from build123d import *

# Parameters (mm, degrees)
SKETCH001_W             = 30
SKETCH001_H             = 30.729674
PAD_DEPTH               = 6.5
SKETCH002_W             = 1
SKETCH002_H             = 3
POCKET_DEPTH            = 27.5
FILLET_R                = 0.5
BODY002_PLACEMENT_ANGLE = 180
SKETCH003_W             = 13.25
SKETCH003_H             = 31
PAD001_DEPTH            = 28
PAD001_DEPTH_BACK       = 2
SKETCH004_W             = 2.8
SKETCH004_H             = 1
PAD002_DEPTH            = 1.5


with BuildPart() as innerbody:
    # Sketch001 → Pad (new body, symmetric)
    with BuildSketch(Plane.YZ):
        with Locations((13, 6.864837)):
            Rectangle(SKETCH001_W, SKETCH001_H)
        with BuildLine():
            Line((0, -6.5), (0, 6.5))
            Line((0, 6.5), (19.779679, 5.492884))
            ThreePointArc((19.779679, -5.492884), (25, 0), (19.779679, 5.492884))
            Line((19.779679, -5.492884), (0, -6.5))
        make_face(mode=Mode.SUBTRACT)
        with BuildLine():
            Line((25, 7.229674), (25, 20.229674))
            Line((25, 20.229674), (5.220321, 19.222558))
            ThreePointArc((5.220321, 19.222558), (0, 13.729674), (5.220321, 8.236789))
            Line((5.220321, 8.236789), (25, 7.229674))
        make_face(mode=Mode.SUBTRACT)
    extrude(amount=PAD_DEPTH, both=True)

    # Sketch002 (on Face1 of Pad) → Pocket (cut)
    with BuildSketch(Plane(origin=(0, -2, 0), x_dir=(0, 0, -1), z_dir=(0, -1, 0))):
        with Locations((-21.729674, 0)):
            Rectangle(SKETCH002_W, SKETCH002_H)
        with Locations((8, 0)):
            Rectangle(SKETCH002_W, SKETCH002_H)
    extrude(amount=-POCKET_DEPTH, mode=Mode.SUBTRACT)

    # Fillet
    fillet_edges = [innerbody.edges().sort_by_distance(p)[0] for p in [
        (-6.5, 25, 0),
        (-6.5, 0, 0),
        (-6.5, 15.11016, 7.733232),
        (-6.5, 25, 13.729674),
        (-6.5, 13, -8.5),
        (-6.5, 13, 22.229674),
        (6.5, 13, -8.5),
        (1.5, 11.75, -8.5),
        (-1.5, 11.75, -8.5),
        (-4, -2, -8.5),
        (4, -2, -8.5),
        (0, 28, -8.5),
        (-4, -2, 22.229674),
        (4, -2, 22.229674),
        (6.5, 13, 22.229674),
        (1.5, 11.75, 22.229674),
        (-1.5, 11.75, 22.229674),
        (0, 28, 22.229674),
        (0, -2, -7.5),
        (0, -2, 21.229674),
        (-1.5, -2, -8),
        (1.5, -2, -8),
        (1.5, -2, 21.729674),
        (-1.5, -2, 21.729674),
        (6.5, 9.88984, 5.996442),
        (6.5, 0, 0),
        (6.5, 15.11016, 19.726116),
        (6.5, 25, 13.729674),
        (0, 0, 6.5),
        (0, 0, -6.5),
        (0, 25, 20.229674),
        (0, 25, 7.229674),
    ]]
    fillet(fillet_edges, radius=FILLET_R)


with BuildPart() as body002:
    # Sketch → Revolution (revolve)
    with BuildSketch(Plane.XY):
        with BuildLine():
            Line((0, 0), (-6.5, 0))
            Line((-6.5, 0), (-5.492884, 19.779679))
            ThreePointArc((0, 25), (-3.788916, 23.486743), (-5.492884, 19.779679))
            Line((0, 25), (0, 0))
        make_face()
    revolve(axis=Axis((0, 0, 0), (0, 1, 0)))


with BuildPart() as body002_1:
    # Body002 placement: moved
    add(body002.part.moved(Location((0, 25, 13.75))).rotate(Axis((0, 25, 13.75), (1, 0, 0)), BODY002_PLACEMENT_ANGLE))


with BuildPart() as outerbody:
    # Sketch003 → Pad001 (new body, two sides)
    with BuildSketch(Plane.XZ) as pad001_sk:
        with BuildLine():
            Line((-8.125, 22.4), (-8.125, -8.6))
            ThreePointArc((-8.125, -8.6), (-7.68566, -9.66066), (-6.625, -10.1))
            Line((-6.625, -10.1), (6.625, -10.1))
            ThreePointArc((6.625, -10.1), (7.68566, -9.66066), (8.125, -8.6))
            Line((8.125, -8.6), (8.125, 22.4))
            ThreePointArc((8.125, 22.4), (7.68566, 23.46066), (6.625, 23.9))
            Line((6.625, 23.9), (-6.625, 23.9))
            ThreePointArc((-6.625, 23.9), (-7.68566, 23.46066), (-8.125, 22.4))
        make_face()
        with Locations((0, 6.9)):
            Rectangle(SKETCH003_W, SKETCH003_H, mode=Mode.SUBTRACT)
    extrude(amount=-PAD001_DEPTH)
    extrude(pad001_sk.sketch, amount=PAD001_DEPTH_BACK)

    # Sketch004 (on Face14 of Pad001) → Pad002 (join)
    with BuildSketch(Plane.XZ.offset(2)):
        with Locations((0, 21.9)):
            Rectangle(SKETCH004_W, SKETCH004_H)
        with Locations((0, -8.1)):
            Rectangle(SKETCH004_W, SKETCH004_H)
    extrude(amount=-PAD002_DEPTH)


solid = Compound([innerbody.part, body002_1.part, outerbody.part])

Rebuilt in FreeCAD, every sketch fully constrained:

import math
import FreeCAD as App
import Part
import Sketcher
from FreeCAD import Vector


def edges_at(feature, points):
    """Names of the edges that pass closest to the given points."""
    edges = feature.Shape.Edges
    near = lambda p: min(range(len(edges)), key=lambda i: edges[i].distToShape(Part.Vertex(*p))[0])
    return sorted({f"Edge{near(p) + 1}" for p in points})

doc = App.newDocument("Part")
body = doc.addObject("PartDesign::Body", "Body")

# Sketch on YZ plane
sketch1 = body.newObject("Sketcher::SketchObject", "Sketch")
sketch1.AttachmentSupport = (doc.getObject("YZ_Plane"), [""])
sketch1.MapMode = "FlatFace"
sketch1.addGeometry([
    Part.LineSegment(Vector(-2, 22, 0), Vector(-2, -8, 0)),  # 0
    Part.LineSegment(Vector(-2, -8, 0), Vector(28, -8, 0)),  # 1
    Part.LineSegment(Vector(28, -8, 0), Vector(28, 22, 0)),  # 2
    Part.LineSegment(Vector(28, 22, 0), Vector(-2, 22, 0)),  # 3
    Part.LineSegment(Vector(20, -5, 0), Vector(0, -6, 0)),  # 4
    Part.LineSegment(Vector(0, -6, 0), Vector(0, 6, 0)),  # 5
    Part.LineSegment(Vector(0, 6, 0), Vector(20, 5, 0)),  # 6
    Part.ArcOfCircle(Part.Circle(Vector(20, 0, 0), Vector(0, 0, 1), 5), math.radians(-87), math.radians(87)),  # 7
    Part.LineSegment(Vector(25, 20, 0), Vector(25, 7, 0)),  # 8
    Part.LineSegment(Vector(25, 7, 0), Vector(5, 8, 0)),  # 9
    Part.ArcOfCircle(Part.Circle(Vector(6, 14, 0), Vector(0, 0, 1), 6), math.radians(93), math.radians(267)),  # 10
    Part.LineSegment(Vector(5, 19, 0), Vector(25, 20, 0)),  # 11
], False)
sketch1.addConstraint([
    Sketcher.Constraint("Coincident", 0, 2, 1, 1),
    Sketcher.Constraint("Coincident", 1, 2, 2, 1),
    Sketcher.Constraint("Coincident", 2, 2, 3, 1),
    Sketcher.Constraint("Coincident", 3, 2, 0, 1),
    Sketcher.Constraint("Coincident", 4, 2, 5, 1),
    Sketcher.Constraint("Coincident", 5, 2, 6, 1),
    Sketcher.Constraint("Tangent", 6, 2, 7, 2),
    Sketcher.Constraint("Tangent", 7, 1, 4, 1),
    Sketcher.Constraint("Coincident", 8, 2, 9, 1),
    Sketcher.Constraint("Tangent", 9, 2, 10, 2),
    Sketcher.Constraint("Tangent", 10, 1, 11, 1),
    Sketcher.Constraint("Coincident", 11, 2, 8, 1),
    Sketcher.Constraint("Vertical", 0),
    Sketcher.Constraint("Horizontal", 1),
    Sketcher.Constraint("Vertical", 2),
    Sketcher.Constraint("Horizontal", 3),
    Sketcher.Constraint("Vertical", 5),
    Sketcher.Constraint("Vertical", 8),
    Sketcher.Constraint("Equal", 7, 10),
    Sketcher.Constraint("Symmetric", 4, 2, 5, 2, -1, 1),
    Sketcher.Constraint("PointOnObject", 7, 3, -1),
    Sketcher.Constraint("Parallel", 6, 9),
    Sketcher.Constraint("Parallel", 4, 11),
    Sketcher.Constraint("Equal", 5, 8),
    Sketcher.Constraint("Radius", 7, 5.5),
    Sketcher.Constraint("DistanceX", 1, 1, 1, 2, 30.0),
    Sketcher.Constraint("DistanceY", 5, 1, 5, 2, 13.0),
    Sketcher.Constraint("DistanceX", 0, 2, -1, 1, 2.0),
    Sketcher.Constraint("DistanceX", -1, 1, 8, 2, 25.0),
    Sketcher.Constraint("DistanceX", 10, 3, 7, 3, 14.0),
    Sketcher.Constraint("DistanceY", 0, 2, 4, 2, 2.0),
    Sketcher.Constraint("DistanceY", 8, 2, 2, 2, 15.0),
    Sketcher.Constraint("DistanceY", 0, 2, 0, 1, 30.729674),
])
pad1 = body.newObject("PartDesign::Pad", "Pad")
pad1.Profile = sketch1
pad1.Length = 13
pad1.Midplane = True

# Sketch on XZ plane
sketch2 = body.newObject("Sketcher::SketchObject", "Sketch001")
sketch2.AttachmentSupport = (doc.getObject("XZ_Plane"), [""])
sketch2.MapMode = "FlatFace"
sketch2.AttachmentOffset = App.Placement(Vector(0, 0, 2), App.Rotation())
sketch2.addGeometry([
    Part.LineSegment(Vector(1.5, 22.2, 0), Vector(-1.5, 22.2, 0)),  # 0
    Part.LineSegment(Vector(-1.5, 22.2, 0), Vector(-1.5, 21.2, 0)),  # 1
    Part.LineSegment(Vector(-1.5, 21.2, 0), Vector(1.5, 21.2, 0)),  # 2
    Part.LineSegment(Vector(1.5, 21.2, 0), Vector(1.5, 22.2, 0)),  # 3
    Part.LineSegment(Vector(1.5, -7.5, 0), Vector(-1.5, -7.5, 0)),  # 4
    Part.LineSegment(Vector(-1.5, -7.5, 0), Vector(-1.5, -8.5, 0)),  # 5
    Part.LineSegment(Vector(-1.5, -8.5, 0), Vector(1.5, -8.5, 0)),  # 6
    Part.LineSegment(Vector(1.5, -8.5, 0), Vector(1.5, -7.5, 0)),  # 7
], False)
sketch2.addConstraint([
    Sketcher.Constraint("Coincident", 0, 2, 1, 1),
    Sketcher.Constraint("Coincident", 1, 2, 2, 1),
    Sketcher.Constraint("Coincident", 2, 2, 3, 1),
    Sketcher.Constraint("Coincident", 3, 2, 0, 1),
    Sketcher.Constraint("Coincident", 4, 2, 5, 1),
    Sketcher.Constraint("Coincident", 5, 2, 6, 1),
    Sketcher.Constraint("Coincident", 6, 2, 7, 1),
    Sketcher.Constraint("Coincident", 7, 2, 4, 1),
    Sketcher.Constraint("Horizontal", 0),
    Sketcher.Constraint("Vertical", 1),
    Sketcher.Constraint("Horizontal", 2),
    Sketcher.Constraint("Vertical", 3),
    Sketcher.Constraint("Horizontal", 4),
    Sketcher.Constraint("Vertical", 5),
    Sketcher.Constraint("Horizontal", 6),
    Sketcher.Constraint("Vertical", 7),
    Sketcher.Constraint("Vertical", 1, 2, 4, 2),
    Sketcher.Constraint("Vertical", 3, 2, 6, 2),
    Sketcher.Constraint("Equal", 3, 5),
    Sketcher.Constraint("DistanceX", 0, 2, 0, 1, 3.0),
    Sketcher.Constraint("DistanceY", 1, 2, 1, 1, 1.0),
    Sketcher.Constraint("DistanceX", 0, 2, -1, 1, 1.5),
    Sketcher.Constraint("DistanceY", 4, 2, -1, 1, 7.5),
    Sketcher.Constraint("DistanceY", -1, 1, 0, 2, 22.229674),
])
pocket1 = body.newObject("PartDesign::Pocket", "Pocket")
pocket1.Profile = sketch2
pocket1.Length = 27.5
doc.recompute()

fillet = body.newObject("PartDesign::Fillet", "Fillet")
fillet.Base = (pocket1, edges_at(pocket1, [
    (-6.5, 25, 0),
    (-6.5, 0, 0),
    (-6.5, 15.11, 7.733),
    (-6.5, 25, 13.73),
    (-6.5, 13, -8.5),
    (-6.5, 13, 22.23),
    (6.5, 13, -8.5),
    (1.5, 11.75, -8.5),
    (-1.5, 11.75, -8.5),
    (-4, -2, -8.5),
    (4, -2, -8.5),
    (0, 28, -8.5),
    (-4, -2, 22.23),
    (4, -2, 22.23),
    (6.5, 13, 22.23),
    (1.5, 11.75, 22.23),
    (-1.5, 11.75, 22.23),
    (0, 28, 22.23),
    (0, -2, -7.5),
    (0, -2, 21.23),
    (-1.5, -2, -8),
    (1.5, -2, -8),
    (1.5, -2, 21.73),
    (-1.5, -2, 21.73),
    (6.5, 9.89, 5.996),
    (6.5, 0, 0),
    (6.5, 15.11, 19.726),
    (6.5, 25, 13.73),
    (0, 0, 6.5),
    (0, 0, -6.5),
    (0, 25, 20.23),
    (0, 25, 7.23),
]))
fillet.Radius = 0.5
body2 = doc.addObject("PartDesign::Body", "Body001")

# Sketch on XY plane
sketch3 = body2.newObject("Sketcher::SketchObject", "Sketch002")
sketch3.AttachmentSupport = (doc.getObject("XY_Plane001"), [""])
sketch3.MapMode = "FlatFace"
sketch3.addGeometry([
    Part.LineSegment(Vector(-6, 0, 0), Vector(0, 0, 0)),
    Part.LineSegment(Vector(0, 0, 0), Vector(0, 25, 0)),
    Part.ArcOfCircle(Part.Circle(Vector(0, 20, 0), Vector(0, 0, 1), 5), math.radians(90), math.radians(177)),
    Part.LineSegment(Vector(-5, 20, 0), Vector(-6, 0, 0)),
], False)
sketch3.addConstraint([
    Sketcher.Constraint("Coincident", 0, 2, 1, 1),
    Sketcher.Constraint("Coincident", 1, 2, 2, 1),
    Sketcher.Constraint("Tangent", 2, 2, 3, 1),
    Sketcher.Constraint("Coincident", 3, 2, 0, 1),
    Sketcher.Constraint("Horizontal", 0),
    Sketcher.Constraint("Vertical", 1),
    Sketcher.Constraint("Coincident", 0, 2, -1, 1),
    Sketcher.Constraint("PointOnObject", 2, 3, -2),
    Sketcher.Constraint("Radius", 2, 5.499998),
    Sketcher.Constraint("DistanceY", 1, 1, 1, 2, 25.0),
    Sketcher.Constraint("DistanceX", 0, 1, 0, 2, 6.5),
])
revolution = body2.newObject("PartDesign::Revolution", "Revolution")
revolution.Profile = sketch3
revolution.ReferenceAxis = (sketch3, ["V_Axis"])
revolution.Angle = 360
body3 = doc.addObject("PartDesign::Body", "Body002")
doc.recompute()

body2.Placement = App.Placement(Vector(0, 25, 13.75), App.Rotation(Vector(1, 0, 0), 180))
boolean = body3.newObject("PartDesign::Boolean", "Boolean")
boolean.Type = "Fuse"
boolean.addObjects([body2])
body4 = doc.addObject("PartDesign::Body", "Body003")

# Sketch on XZ plane
sketch4 = body4.newObject("Sketcher::SketchObject", "Sketch003")
sketch4.AttachmentSupport = (doc.getObject("XZ_Plane003"), [""])
sketch4.MapMode = "FlatFace"
sketch4.addGeometry([
    Part.LineSegment(Vector(-8.1, 22.4, 0), Vector(-8.1, -8.6, 0)),  # 0
    Part.ArcOfCircle(Part.Circle(Vector(-6.6, -8.6, 0), Vector(0, 0, 1), 1.5), math.radians(-180), math.radians(-90)),  # 1
    Part.LineSegment(Vector(-6.6, -10.1, 0), Vector(6.6, -10.1, 0)),  # 2
    Part.ArcOfCircle(Part.Circle(Vector(6.6, -8.6, 0), Vector(0, 0, 1), 1.5), math.radians(-90), math.radians(0)),  # 3
    Part.LineSegment(Vector(8.1, -8.6, 0), Vector(8.1, 22.4, 0)),  # 4
    Part.ArcOfCircle(Part.Circle(Vector(6.6, 22.4, 0), Vector(0, 0, 1), 1.5), math.radians(0), math.radians(90)),  # 5
    Part.LineSegment(Vector(6.6, 23.9, 0), Vector(-6.6, 23.9, 0)),  # 6
    Part.ArcOfCircle(Part.Circle(Vector(-6.6, 22.4, 0), Vector(0, 0, 1), 1.5), math.radians(90), math.radians(180)),  # 7
    Part.LineSegment(Vector(6.6, -8.6, 0), Vector(-6.6, -8.6, 0)),  # 8
    Part.LineSegment(Vector(-6.6, -8.6, 0), Vector(-6.6, 22.4, 0)),  # 9
    Part.LineSegment(Vector(-6.6, 22.4, 0), Vector(6.6, 22.4, 0)),  # 10
    Part.LineSegment(Vector(6.6, 22.4, 0), Vector(6.6, -8.6, 0)),  # 11
], False)
sketch4.addConstraint([
    Sketcher.Constraint("Tangent", 0, 2, 1, 1),
    Sketcher.Constraint("Tangent", 1, 2, 2, 1),
    Sketcher.Constraint("Tangent", 2, 2, 3, 1),
    Sketcher.Constraint("Tangent", 3, 2, 4, 1),
    Sketcher.Constraint("Tangent", 4, 2, 5, 1),
    Sketcher.Constraint("Tangent", 5, 2, 6, 1),
    Sketcher.Constraint("Tangent", 6, 2, 7, 1),
    Sketcher.Constraint("Tangent", 7, 2, 0, 1),
    Sketcher.Constraint("Coincident", 8, 2, 9, 1),
    Sketcher.Constraint("Coincident", 9, 2, 10, 1),
    Sketcher.Constraint("Coincident", 10, 2, 11, 1),
    Sketcher.Constraint("Coincident", 11, 2, 8, 1),
    Sketcher.Constraint("Vertical", 0),
    Sketcher.Constraint("Horizontal", 2),
    Sketcher.Constraint("Vertical", 4),
    Sketcher.Constraint("Horizontal", 6),
    Sketcher.Constraint("Horizontal", 8),
    Sketcher.Constraint("Vertical", 9),
    Sketcher.Constraint("Horizontal", 10),
    Sketcher.Constraint("Vertical", 11),
    Sketcher.Constraint("Coincident", 8, 2, 1, 3),
    Sketcher.Constraint("Coincident", 9, 2, 7, 3),
    Sketcher.Constraint("Coincident", 10, 2, 5, 3),
    Sketcher.Constraint("Equal", 1, 3),
    Sketcher.Constraint("Radius", 1, 1.500001),
    Sketcher.Constraint("DistanceY", 0, 2, 0, 1, 31.0),
    Sketcher.Constraint("DistanceX", 2, 1, 2, 2, 13.25),
    Sketcher.Constraint("DistanceY", 1, 3, -1, 1, 8.599999),
    Sketcher.Constraint("DistanceX", 1, 3, -1, 1, 6.624999),
])
pad2 = body4.newObject("PartDesign::Pad", "Pad001")
pad2.Profile = sketch4
pad2.Type = "TwoLengths"
pad2.Length = 28
pad2.Length2 = 2
pad2.Reversed = True

# Sketch on XZ plane
sketch5 = body4.newObject("Sketcher::SketchObject", "Sketch004")
sketch5.AttachmentSupport = (doc.getObject("XZ_Plane003"), [""])
sketch5.MapMode = "FlatFace"
sketch5.AttachmentOffset = App.Placement(Vector(0, 0, 2), App.Rotation())
sketch5.addGeometry([
    Part.LineSegment(Vector(-1.4, 22.4, 0), Vector(-1.4, 21.4, 0)),  # 0
    Part.LineSegment(Vector(-1.4, 21.4, 0), Vector(1.4, 21.4, 0)),  # 1
    Part.LineSegment(Vector(1.4, 21.4, 0), Vector(1.4, 22.4, 0)),  # 2
    Part.LineSegment(Vector(1.4, 22.4, 0), Vector(-1.4, 22.4, 0)),  # 3
    Part.LineSegment(Vector(-1.4, -7.6, 0), Vector(-1.4, -8.6, 0)),  # 4
    Part.LineSegment(Vector(-1.4, -8.6, 0), Vector(1.4, -8.6, 0)),  # 5
    Part.LineSegment(Vector(1.4, -8.6, 0), Vector(1.4, -7.6, 0)),  # 6
    Part.LineSegment(Vector(1.4, -7.6, 0), Vector(-1.4, -7.6, 0)),  # 7
], False)
sketch5.addConstraint([
    Sketcher.Constraint("Coincident", 0, 2, 1, 1),
    Sketcher.Constraint("Coincident", 1, 2, 2, 1),
    Sketcher.Constraint("Coincident", 2, 2, 3, 1),
    Sketcher.Constraint("Coincident", 3, 2, 0, 1),
    Sketcher.Constraint("Coincident", 4, 2, 5, 1),
    Sketcher.Constraint("Coincident", 5, 2, 6, 1),
    Sketcher.Constraint("Coincident", 6, 2, 7, 1),
    Sketcher.Constraint("Coincident", 7, 2, 4, 1),
    Sketcher.Constraint("Vertical", 0),
    Sketcher.Constraint("Horizontal", 1),
    Sketcher.Constraint("Vertical", 2),
    Sketcher.Constraint("Horizontal", 3),
    Sketcher.Constraint("Vertical", 4),
    Sketcher.Constraint("Horizontal", 5),
    Sketcher.Constraint("Vertical", 6),
    Sketcher.Constraint("Horizontal", 7),
    Sketcher.Constraint("Vertical", 3, 2, 4, 2),
    Sketcher.Constraint("Vertical", 2, 2, 5, 2),
    Sketcher.Constraint("Equal", 2, 4),
    Sketcher.Constraint("DistanceY", 0, 2, 0, 1, 1.0),
    Sketcher.Constraint("DistanceX", 1, 1, 1, 2, 2.8),
    Sketcher.Constraint("DistanceY", 4, 2, 0, 2, 30.0),
    Sketcher.Constraint("DistanceX", 0, 2, -1, 1, 1.4),
    Sketcher.Constraint("DistanceY", -1, 1, 0, 2, 21.4),
])
pad3 = body4.newObject("PartDesign::Pad", "Pad002")
pad3.Profile = sketch5
pad3.Length = 1.5
pad3.Reversed = True

doc.recompute()
